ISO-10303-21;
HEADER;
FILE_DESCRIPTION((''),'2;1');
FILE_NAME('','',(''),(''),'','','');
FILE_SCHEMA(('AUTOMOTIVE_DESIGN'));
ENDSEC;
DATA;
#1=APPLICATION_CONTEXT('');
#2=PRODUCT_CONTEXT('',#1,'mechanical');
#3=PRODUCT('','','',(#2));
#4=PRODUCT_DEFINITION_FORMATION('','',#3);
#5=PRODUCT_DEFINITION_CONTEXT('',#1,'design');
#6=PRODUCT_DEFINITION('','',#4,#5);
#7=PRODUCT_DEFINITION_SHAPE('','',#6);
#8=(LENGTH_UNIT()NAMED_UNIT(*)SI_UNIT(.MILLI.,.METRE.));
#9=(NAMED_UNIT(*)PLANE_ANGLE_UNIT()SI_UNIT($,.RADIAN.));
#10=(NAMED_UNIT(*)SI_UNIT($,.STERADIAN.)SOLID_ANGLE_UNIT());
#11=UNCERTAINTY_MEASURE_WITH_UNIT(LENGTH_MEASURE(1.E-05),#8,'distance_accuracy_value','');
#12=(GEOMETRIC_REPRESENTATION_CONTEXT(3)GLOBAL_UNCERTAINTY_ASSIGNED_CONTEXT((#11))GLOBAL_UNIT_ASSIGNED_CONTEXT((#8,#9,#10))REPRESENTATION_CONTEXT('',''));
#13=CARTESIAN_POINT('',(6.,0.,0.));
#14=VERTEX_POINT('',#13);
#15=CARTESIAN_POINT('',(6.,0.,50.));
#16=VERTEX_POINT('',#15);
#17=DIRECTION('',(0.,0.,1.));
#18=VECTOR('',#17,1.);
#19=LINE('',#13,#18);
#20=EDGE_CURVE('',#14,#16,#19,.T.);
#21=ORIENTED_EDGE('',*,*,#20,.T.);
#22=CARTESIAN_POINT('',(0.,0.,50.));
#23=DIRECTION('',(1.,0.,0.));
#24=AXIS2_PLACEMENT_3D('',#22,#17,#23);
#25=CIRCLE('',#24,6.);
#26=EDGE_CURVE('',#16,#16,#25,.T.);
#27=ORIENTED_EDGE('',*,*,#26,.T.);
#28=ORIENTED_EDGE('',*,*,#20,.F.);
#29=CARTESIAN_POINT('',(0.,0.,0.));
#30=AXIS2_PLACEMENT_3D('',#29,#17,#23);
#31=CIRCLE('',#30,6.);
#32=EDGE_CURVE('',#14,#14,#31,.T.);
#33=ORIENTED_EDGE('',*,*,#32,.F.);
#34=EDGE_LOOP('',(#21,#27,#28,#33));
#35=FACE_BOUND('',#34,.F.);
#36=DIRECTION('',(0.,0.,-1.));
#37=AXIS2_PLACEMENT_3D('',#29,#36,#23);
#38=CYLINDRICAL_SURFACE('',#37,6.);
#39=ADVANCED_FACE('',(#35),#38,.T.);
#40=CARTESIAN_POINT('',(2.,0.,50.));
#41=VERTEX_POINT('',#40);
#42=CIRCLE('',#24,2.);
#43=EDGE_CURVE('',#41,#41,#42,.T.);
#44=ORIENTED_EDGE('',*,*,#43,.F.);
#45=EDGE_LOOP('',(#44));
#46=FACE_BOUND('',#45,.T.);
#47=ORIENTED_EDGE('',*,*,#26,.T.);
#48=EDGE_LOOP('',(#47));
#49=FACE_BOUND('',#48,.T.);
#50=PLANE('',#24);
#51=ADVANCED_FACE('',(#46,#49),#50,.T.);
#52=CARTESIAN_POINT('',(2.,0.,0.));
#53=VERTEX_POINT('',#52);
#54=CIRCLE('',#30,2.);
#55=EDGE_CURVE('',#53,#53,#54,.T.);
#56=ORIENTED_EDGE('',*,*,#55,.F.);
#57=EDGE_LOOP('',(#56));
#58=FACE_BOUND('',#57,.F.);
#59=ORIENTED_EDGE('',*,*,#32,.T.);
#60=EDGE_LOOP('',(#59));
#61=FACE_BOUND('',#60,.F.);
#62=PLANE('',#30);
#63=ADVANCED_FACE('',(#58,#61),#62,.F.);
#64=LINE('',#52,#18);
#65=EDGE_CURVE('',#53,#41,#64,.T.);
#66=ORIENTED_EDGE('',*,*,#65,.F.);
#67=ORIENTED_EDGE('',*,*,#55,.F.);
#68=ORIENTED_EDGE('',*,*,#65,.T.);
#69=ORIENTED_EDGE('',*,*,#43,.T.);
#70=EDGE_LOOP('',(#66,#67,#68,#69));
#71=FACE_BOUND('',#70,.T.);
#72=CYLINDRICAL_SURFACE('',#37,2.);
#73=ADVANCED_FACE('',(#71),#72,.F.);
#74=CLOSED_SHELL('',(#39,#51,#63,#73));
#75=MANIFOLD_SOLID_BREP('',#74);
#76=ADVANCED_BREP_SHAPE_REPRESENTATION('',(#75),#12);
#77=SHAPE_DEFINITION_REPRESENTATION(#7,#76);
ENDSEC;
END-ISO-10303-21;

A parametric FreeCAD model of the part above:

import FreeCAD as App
import Part
import Sketcher

doc = App.newDocument("Part")
body = doc.addObject("PartDesign::Body", "Body")

# Sketch on XY plane
sketch1 = body.newObject("Sketcher::SketchObject", "Sketch")
sketch1.AttachmentSupport = (doc.getObject("XY_Plane"), [""])
sketch1.MapMode = "FlatFace"
sketch1.addGeometry(Part.Circle(App.Vector(0, 0, 0), App.Vector(0, 0, 1), 6), False)
sketch1.addGeometry(Part.Circle(App.Vector(0, 0, 0), App.Vector(0, 0, 1), 2), False)
sketch1.addConstraint(Sketcher.Constraint("Coincident", 0, 3, -1, 1))
sketch1.addConstraint(Sketcher.Constraint("Coincident", 1, 3, -1, 1))
sketch1.addConstraint(Sketcher.Constraint("Diameter", 0, 12.0))
sketch1.addConstraint(Sketcher.Constraint("Diameter", 1, 4.0))
pad1 = body.newObject("PartDesign::Pad", "Pad")
pad1.Profile = sketch1
pad1.Length = 50

doc.recompute()
